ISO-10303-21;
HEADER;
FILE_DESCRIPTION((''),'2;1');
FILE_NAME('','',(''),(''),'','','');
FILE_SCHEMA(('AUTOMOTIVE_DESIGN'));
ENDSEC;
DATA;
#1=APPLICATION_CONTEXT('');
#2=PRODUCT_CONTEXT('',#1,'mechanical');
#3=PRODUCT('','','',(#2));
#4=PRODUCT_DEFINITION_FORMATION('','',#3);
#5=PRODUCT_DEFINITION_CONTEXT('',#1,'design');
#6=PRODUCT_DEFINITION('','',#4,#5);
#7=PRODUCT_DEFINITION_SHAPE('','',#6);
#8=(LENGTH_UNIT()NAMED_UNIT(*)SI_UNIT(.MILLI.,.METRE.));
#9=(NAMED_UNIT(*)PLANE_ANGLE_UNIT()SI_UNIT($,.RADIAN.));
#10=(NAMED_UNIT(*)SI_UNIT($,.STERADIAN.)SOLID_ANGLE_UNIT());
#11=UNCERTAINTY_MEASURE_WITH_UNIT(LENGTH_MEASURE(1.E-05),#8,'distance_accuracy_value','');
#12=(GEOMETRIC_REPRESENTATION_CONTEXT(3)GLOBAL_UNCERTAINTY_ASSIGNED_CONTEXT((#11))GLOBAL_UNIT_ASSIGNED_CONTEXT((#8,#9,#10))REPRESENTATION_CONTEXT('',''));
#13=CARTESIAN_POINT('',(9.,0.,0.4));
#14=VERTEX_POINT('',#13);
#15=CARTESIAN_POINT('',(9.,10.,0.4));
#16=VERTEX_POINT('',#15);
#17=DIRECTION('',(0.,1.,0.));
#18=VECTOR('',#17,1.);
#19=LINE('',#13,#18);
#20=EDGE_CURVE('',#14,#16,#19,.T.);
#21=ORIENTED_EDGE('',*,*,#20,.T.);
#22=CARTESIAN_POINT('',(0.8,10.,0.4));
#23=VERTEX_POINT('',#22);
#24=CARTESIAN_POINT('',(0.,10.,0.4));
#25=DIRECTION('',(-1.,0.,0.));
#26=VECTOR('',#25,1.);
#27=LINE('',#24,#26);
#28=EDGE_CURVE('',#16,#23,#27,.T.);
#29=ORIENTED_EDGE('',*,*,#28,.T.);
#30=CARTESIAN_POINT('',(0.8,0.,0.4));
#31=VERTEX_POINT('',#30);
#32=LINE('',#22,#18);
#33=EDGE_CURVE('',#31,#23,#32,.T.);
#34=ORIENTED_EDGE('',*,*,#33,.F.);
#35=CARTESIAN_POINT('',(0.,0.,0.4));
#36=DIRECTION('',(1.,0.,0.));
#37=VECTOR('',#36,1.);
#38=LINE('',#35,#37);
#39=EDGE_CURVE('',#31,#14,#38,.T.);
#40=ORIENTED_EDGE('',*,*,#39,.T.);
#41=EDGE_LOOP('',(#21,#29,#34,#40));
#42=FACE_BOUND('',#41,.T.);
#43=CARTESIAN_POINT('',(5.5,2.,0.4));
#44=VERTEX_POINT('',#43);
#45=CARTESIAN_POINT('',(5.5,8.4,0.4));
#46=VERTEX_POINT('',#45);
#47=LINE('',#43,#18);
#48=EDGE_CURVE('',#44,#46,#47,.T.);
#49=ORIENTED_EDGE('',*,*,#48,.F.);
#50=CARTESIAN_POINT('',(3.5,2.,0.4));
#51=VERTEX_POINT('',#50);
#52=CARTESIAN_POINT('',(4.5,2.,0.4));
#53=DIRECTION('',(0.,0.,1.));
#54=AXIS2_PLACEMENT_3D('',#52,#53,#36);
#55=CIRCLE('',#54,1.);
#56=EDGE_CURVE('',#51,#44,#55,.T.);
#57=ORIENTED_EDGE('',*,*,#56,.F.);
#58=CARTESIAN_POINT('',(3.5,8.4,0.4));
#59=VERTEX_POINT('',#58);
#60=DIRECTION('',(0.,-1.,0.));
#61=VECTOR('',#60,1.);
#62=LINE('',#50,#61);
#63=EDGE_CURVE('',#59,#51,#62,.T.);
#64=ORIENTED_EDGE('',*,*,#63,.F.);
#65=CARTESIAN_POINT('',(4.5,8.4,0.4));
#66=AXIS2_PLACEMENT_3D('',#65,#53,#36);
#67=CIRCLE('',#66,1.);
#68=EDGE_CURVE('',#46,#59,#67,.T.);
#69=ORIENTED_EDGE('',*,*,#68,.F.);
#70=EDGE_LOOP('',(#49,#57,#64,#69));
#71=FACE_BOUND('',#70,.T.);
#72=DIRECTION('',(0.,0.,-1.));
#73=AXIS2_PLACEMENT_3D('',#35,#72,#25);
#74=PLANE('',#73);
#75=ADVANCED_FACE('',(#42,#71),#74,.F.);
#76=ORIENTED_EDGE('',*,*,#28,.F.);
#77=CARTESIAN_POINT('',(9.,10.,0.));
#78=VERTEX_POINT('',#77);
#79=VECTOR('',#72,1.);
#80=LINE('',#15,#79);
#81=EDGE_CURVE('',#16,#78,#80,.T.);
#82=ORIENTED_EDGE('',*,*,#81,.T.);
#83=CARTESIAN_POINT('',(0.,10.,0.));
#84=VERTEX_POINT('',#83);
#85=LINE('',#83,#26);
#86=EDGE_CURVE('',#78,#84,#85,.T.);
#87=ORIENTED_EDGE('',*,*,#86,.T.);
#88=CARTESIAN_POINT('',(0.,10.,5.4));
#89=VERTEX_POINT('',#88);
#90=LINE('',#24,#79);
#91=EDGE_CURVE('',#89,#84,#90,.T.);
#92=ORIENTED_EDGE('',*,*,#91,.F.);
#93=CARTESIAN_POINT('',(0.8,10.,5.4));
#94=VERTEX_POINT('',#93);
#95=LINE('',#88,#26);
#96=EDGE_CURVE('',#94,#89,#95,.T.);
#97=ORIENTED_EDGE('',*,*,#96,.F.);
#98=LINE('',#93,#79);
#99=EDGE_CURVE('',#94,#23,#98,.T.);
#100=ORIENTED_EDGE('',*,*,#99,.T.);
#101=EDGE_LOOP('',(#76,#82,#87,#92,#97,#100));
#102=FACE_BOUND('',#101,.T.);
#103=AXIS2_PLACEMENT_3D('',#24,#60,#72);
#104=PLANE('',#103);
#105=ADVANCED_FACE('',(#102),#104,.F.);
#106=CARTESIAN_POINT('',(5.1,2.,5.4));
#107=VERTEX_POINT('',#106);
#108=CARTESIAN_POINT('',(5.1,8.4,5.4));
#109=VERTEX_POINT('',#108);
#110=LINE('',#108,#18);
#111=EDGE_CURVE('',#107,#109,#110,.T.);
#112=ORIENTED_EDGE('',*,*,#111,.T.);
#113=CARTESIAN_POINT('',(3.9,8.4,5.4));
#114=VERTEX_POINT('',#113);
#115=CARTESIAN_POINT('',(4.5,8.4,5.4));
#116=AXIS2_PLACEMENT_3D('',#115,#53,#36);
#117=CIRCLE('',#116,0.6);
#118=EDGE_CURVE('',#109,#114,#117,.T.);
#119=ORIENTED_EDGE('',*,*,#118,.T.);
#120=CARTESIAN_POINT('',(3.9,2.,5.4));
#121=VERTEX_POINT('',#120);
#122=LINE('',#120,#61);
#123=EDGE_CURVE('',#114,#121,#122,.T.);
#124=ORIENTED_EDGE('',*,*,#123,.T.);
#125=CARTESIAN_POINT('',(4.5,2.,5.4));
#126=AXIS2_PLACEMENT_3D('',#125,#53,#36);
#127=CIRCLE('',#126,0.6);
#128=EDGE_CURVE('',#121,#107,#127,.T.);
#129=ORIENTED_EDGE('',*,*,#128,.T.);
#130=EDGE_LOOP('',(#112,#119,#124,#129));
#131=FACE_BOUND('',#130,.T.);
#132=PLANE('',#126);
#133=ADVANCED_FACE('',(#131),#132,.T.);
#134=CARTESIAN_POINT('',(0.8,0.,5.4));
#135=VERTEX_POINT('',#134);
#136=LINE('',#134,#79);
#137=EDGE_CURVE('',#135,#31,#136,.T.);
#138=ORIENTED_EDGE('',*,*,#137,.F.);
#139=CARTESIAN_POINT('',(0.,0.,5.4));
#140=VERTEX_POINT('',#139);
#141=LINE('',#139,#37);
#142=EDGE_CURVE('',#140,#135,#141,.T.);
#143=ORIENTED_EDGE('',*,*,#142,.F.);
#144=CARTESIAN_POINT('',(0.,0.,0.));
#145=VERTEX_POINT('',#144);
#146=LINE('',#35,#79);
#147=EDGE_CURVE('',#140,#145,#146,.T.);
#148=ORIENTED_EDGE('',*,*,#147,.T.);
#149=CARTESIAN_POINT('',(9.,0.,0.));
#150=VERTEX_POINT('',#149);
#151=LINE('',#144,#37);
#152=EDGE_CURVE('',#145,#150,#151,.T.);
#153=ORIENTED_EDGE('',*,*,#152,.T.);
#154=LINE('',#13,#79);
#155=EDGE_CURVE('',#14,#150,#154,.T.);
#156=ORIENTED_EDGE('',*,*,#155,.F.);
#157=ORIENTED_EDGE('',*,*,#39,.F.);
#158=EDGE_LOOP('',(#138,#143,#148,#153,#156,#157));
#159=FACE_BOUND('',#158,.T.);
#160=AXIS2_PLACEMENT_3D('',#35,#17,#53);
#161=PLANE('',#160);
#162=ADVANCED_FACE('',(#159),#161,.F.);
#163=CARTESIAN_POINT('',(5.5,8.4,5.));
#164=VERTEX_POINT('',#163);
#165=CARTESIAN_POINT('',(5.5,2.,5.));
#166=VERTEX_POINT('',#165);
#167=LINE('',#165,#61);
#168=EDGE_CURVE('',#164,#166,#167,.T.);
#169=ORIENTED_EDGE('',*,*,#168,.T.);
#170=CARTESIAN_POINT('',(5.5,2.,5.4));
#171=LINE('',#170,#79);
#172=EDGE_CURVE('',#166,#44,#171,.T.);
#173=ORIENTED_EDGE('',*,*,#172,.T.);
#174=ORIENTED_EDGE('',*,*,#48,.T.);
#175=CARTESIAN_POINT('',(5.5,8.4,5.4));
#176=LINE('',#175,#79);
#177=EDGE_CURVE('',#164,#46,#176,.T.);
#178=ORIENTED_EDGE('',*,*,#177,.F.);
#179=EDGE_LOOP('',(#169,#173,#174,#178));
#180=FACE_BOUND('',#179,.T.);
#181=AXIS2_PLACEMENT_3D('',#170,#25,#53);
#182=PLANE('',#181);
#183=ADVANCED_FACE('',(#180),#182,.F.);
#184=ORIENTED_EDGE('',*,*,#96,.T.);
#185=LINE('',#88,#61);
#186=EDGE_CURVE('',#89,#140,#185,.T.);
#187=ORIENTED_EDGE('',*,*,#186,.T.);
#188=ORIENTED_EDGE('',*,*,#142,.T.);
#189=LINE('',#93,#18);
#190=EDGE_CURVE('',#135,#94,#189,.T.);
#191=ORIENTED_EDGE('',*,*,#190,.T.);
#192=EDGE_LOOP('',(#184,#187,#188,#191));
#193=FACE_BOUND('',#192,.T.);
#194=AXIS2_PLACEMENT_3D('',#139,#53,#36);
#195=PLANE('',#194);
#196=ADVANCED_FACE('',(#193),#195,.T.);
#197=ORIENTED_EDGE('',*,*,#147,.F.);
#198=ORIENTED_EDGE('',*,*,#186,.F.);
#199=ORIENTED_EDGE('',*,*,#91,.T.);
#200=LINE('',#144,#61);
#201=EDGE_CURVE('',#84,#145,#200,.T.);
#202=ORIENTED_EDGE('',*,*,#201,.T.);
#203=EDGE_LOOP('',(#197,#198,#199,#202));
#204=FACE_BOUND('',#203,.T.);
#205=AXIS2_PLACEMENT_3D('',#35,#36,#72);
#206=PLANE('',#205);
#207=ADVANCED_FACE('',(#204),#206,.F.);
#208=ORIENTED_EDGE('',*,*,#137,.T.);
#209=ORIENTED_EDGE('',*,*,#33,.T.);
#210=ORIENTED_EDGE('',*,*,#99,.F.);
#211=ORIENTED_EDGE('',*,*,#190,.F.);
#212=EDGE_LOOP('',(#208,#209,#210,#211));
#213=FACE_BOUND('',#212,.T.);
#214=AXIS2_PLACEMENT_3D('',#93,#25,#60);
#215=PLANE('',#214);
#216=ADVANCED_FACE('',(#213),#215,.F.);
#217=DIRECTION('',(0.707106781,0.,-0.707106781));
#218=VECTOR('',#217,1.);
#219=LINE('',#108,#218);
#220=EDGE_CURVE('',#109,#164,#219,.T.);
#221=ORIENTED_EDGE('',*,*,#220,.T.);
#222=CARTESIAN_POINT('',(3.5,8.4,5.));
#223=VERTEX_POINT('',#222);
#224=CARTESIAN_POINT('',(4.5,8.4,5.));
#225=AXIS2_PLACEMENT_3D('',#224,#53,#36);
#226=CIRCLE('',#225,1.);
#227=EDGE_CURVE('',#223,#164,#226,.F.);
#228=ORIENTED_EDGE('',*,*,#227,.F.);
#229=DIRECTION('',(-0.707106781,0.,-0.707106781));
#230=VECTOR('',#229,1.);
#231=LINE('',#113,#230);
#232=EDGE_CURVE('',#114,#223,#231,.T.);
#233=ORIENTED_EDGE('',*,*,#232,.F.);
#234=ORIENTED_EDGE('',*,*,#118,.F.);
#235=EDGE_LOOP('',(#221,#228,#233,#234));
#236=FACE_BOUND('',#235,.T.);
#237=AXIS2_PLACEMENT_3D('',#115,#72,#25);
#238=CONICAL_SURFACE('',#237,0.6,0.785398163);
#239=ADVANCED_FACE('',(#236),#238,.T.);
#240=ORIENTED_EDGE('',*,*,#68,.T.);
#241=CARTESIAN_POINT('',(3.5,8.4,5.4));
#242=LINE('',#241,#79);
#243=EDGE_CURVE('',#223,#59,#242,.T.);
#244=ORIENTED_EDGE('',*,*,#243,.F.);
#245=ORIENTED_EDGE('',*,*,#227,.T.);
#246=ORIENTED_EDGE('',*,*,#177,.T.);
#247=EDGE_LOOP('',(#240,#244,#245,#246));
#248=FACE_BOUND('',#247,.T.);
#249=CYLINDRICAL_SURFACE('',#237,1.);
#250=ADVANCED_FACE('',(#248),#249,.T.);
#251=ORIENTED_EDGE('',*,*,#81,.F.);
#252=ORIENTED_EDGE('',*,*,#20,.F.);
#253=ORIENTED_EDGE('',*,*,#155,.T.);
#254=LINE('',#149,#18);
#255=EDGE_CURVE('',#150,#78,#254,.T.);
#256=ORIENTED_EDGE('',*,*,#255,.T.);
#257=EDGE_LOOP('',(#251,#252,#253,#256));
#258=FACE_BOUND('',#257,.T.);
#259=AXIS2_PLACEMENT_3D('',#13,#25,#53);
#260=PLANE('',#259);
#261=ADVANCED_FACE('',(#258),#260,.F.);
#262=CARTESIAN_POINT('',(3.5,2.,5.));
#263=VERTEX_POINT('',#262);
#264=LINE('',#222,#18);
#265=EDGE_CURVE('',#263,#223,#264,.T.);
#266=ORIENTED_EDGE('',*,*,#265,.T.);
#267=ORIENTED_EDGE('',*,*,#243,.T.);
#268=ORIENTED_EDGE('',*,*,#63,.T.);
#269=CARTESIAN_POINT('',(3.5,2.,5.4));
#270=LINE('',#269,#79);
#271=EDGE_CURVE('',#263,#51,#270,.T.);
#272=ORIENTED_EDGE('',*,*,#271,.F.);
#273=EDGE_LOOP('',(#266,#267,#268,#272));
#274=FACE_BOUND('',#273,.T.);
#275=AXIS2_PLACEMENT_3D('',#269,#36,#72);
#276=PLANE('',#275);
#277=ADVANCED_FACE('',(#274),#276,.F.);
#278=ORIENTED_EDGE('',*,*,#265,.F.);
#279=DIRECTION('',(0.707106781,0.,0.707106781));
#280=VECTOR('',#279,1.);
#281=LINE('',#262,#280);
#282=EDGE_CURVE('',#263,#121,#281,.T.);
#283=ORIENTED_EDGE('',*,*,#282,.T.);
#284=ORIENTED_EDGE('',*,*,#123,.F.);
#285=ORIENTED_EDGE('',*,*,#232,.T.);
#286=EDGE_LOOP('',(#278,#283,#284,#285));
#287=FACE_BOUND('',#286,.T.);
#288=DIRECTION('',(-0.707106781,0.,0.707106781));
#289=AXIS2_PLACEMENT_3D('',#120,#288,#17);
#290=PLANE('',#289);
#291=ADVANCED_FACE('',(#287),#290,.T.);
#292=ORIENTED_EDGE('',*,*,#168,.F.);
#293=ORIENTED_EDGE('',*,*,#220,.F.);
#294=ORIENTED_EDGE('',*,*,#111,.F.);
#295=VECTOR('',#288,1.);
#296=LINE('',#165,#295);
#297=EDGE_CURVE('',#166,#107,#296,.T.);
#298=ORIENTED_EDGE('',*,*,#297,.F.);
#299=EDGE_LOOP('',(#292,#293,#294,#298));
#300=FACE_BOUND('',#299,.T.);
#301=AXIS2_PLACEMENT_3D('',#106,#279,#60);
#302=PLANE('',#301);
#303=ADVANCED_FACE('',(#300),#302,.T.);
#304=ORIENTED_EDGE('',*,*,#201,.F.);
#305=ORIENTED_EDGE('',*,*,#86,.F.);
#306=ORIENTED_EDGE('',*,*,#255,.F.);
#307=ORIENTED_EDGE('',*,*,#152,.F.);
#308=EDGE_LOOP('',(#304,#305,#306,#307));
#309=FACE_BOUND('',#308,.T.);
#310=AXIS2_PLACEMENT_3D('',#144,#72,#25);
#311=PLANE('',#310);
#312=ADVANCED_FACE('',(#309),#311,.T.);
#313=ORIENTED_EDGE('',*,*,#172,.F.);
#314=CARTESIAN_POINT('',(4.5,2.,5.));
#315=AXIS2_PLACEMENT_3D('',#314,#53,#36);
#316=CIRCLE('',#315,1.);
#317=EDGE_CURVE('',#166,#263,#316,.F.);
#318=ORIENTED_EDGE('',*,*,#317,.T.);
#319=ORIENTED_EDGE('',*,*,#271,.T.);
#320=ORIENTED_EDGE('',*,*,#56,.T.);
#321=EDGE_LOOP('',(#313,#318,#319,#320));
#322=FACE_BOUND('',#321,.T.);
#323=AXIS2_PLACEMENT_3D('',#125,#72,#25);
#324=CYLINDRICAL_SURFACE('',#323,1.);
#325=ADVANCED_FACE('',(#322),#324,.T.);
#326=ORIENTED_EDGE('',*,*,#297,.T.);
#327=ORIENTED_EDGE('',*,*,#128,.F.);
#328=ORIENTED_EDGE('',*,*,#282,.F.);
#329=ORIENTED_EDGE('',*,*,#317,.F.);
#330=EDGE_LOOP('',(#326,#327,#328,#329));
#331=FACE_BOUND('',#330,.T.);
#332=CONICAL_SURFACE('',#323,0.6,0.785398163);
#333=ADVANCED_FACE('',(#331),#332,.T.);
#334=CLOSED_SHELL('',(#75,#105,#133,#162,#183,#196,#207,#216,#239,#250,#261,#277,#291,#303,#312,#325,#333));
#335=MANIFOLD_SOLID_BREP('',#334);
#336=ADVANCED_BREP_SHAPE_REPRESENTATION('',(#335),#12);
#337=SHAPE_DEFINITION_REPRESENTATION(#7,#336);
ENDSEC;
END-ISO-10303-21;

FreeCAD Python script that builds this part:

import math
import FreeCAD as App
import Part
import Sketcher
Q = App.Units.Quantity


def edges_at(feature, points):
    """Names of the edges that pass closest to the given points."""
    edges = feature.Shape.Edges
    near = lambda p: min(range(len(edges)), key=lambda i: edges[i].distToShape(Part.Vertex(*p))[0])
    return sorted({f"Edge{near(p) + 1}" for p in points})


def add_polygon(sketch, points):
    """Adds a closed chain of lines whose ends are joined by coincident constraints."""
    first, n = sketch.GeometryCount, len(points)
    for a, b in zip(points, points[1:] + points[:1]):
        sketch.addGeometry(Part.LineSegment(App.Vector(*a, 0), App.Vector(*b, 0)), False)
    for i in range(n):
        sketch.addConstraint(Sketcher.Constraint("Coincident", first + i, 2, first + (i + 1) % n, 1))

doc = App.newDocument("Part")
body = doc.addObject("PartDesign::Body", "Body")

sketch1 = body.newObject("Sketcher::SketchObject", "Sketch")
sketch1.AttachmentSupport = (doc.getObject("XY_Plane"), [""])
sketch1.MapMode = "FlatFace"
add_polygon(sketch1, [(0, 10), (0, 0), (9, 0), (9, 10)])
sketch1.addConstraint([
    Sketcher.Constraint("Vertical", 0),
    Sketcher.Constraint("Horizontal", 1),
    Sketcher.Constraint("Vertical", 2),
    Sketcher.Constraint("Horizontal", 3),
    Sketcher.Constraint("Coincident", 0, 2, -1, 1),
    Sketcher.Constraint("DistanceX", 1, 1, 1, 2, Q("9 mm")),
    Sketcher.Constraint("DistanceY", 0, 2, 0, 1, Q("10 mm")),
])
pad1 = body.newObject("PartDesign::Pad", "Pad")
pad1.Profile = sketch1
pad1.Length = 0.4

sketch2 = body.newObject("Sketcher::SketchObject", "Sketch001")
sketch2.AttachmentSupport = (doc.getObject("XY_Plane"), [""])
sketch2.MapMode = "FlatFace"
sketch2.AttachmentOffset = App.Placement(App.Vector(0, 0, 0.4), App.Rotation())
sketch2.addGeometry([
    Part.LineSegment(App.Vector(3.5, 8.4, 0), App.Vector(3.5, 2, 0)),
    Part.ArcOfCircle(Part.Circle(App.Vector(4.5, 2, 0), App.Vector(0, 0, 1), 1), math.radians(180), math.radians(360)),
    Part.LineSegment(App.Vector(5.5, 2, 0), App.Vector(5.5, 8.4, 0)),
    Part.ArcOfCircle(Part.Circle(App.Vector(4.5, 8.4, 0), App.Vector(0, 0, 1), 1), math.radians(0), math.radians(180)),
], False)
sketch2.addConstraint([
    Sketcher.Constraint("Tangent", 0, 2, 1, 1),
    Sketcher.Constraint("Tangent", 1, 2, 2, 1),
    Sketcher.Constraint("Tangent", 2, 2, 3, 1),
    Sketcher.Constraint("Tangent", 3, 2, 0, 1),
    Sketcher.Constraint("Vertical", 0),
    Sketcher.Constraint("Vertical", 2),
    Sketcher.Constraint("Radius", 1, Q("1 mm")),
    Sketcher.Constraint("DistanceY", 0, 2, 0, 1, Q("6.4 mm")),
    Sketcher.Constraint("DistanceY", -1, 1, 1, 3, Q("2 mm")),
    Sketcher.Constraint("DistanceX", -1, 1, 1, 3, Q("4.5 mm")),
])
pad2 = body.newObject("PartDesign::Pad", "Pad001")
pad2.Profile = sketch2
pad2.Length = 5

sketch3 = body.newObject("Sketcher::SketchObject", "Sketch002")
sketch3.AttachmentSupport = (doc.getObject("XY_Plane"), [""])
sketch3.MapMode = "FlatFace"
sketch3.AttachmentOffset = App.Placement(App.Vector(0, 0, 0.4), App.Rotation())
add_polygon(sketch3, [(0, 10), (0, 0), (0.8, 0), (0.8, 10)])
sketch3.addConstraint([
    Sketcher.Constraint("Vertical", 0),
    Sketcher.Constraint("Horizontal", 1),
    Sketcher.Constraint("Vertical", 2),
    Sketcher.Constraint("Horizontal", 3),
    Sketcher.Constraint("Coincident", 0, 2, -1, 1),
    Sketcher.Constraint("DistanceY", 0, 2, 0, 1, Q("10 mm")),
    Sketcher.Constraint("DistanceX", 1, 1, 1, 2, Q("0.8 mm")),
])
pad3 = body.newObject("PartDesign::Pad", "Pad002")
pad3.Profile = sketch3
pad3.Length = 5
doc.recompute()

chamfer = body.newObject("PartDesign::Chamfer", "Chamfer")
chamfer.Base = (pad3, edges_at(pad3, [
    (4.5, 1, 5.4),
    (5.5, 5.2, 5.4),
    (4.5, 9.4, 5.4),
    (3.5, 5.2, 5.4),
]))
chamfer.Size = 0.4

doc.recompute()
